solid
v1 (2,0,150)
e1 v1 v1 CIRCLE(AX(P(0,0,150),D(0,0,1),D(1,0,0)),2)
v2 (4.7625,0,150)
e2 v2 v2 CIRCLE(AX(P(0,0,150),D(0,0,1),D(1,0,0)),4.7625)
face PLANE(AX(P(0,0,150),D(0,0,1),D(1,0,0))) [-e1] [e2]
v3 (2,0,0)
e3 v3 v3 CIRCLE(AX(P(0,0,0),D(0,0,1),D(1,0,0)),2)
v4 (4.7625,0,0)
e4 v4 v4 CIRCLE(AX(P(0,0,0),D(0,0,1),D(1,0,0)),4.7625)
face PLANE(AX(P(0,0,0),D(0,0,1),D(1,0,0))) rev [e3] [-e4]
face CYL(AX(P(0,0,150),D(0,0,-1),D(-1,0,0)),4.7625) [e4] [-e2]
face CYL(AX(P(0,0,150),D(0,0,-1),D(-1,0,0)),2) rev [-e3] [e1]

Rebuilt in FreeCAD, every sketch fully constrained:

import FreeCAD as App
import Part
import Sketcher
from FreeCAD import Vector

doc = App.newDocument("Part")
body = doc.addObject("PartDesign::Body", "Body")

# Sketch on XY plane
sketch1 = doc.addObject("Sketcher::SketchObject", "Sketch")
body.addObject(sketch1)
sketch1.AttachmentSupport = (doc.XY_Plane, [""])
sketch1.MapMode = "FlatFace"
sketch1.addGeometry(Part.Circle(Vector(0, 0, 0), Vector(0, 0, 1), 4.8), False)
sketch1.addGeometry(Part.Circle(Vector(0, 0, 0), Vector(0, 0, 1), 2), False)
sketch1.addConstraint(Sketcher.Constraint("Coincident", 0, 3, -1, 1))
sketch1.addConstraint(Sketcher.Constraint("Coincident", 1, 3, -1, 1))
sketch1.addConstraint(Sketcher.Constraint("Diameter", 1, 4.0))
sketch1.addConstraint(Sketcher.Constraint("Diameter", 0, 9.525))
pad1 = doc.addObject("PartDesign::Pad", "Pad")
body.addObject(pad1)
pad1.Profile = sketch1
pad1.Length = 150

doc.recompute()
